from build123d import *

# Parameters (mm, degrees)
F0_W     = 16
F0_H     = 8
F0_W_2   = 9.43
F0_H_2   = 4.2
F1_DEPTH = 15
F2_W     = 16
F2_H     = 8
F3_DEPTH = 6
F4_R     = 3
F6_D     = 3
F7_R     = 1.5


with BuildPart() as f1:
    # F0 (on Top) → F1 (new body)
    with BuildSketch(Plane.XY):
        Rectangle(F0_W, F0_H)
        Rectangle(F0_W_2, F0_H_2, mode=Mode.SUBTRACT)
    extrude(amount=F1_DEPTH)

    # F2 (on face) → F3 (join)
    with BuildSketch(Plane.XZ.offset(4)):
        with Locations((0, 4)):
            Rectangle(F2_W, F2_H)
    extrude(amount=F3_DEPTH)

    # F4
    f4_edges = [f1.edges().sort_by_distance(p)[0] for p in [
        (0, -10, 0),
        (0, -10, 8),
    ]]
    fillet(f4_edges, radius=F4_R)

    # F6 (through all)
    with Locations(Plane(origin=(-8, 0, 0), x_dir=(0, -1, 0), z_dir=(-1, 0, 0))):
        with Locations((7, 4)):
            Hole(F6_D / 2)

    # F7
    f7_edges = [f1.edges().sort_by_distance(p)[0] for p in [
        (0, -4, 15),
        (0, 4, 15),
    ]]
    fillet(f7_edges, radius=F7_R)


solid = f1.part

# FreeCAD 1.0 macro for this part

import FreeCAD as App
import Part
import Sketcher


def edges_at(feature, points):
    """Names of the edges that pass closest to the given points."""
    edges = feature.Shape.Edges
    near = lambda p: min(range(len(edges)), key=lambda i: edges[i].distToShape(Part.Vertex(*p))[0])
    return sorted({f"Edge{near(p) + 1}" for p in points})


def add_polygon(sketch, points):
    """Adds a closed chain of lines whose ends are joined by coincident constraints."""
    first, n = sketch.GeometryCount, len(points)
    for a, b in zip(points, points[1:] + points[:1]):
        sketch.addGeometry(Part.LineSegment(App.Vector(*a, 0), App.Vector(*b, 0)), False)
    for i in range(n):
        sketch.addConstraint(Sketcher.Constraint("Coincident", first + i, 2, first + (i + 1) % n, 1))

doc = App.newDocument("Part")
body = doc.addObject("PartDesign::Body", "Body")

sketch1 = body.newObject("Sketcher::SketchObject", "Sketch")
sketch1.AttachmentSupport = (doc.getObject("XY_Plane"), [""])
sketch1.MapMode = "FlatFace"
add_polygon(sketch1, [(-8, 4), (-8, -4), (8, -4), (8, 4)])
add_polygon(sketch1, [(4.7, -2.1), (-4.7, -2.1), (-4.7, 2.1), (4.7, 2.1)])
sketch1.addConstraint([
    Sketcher.Constraint("Vertical", 0),
    Sketcher.Constraint("Horizontal", 1),
    Sketcher.Constraint("Vertical", 2),
    Sketcher.Constraint("Horizontal", 3),
    Sketcher.Constraint("Horizontal", 4),
    Sketcher.Constraint("Vertical", 5),
    Sketcher.Constraint("Horizontal", 6),
    Sketcher.Constraint("Vertical", 7),
    Sketcher.Constraint("Symmetric", 0, 2, 2, 2, -1, 1),
    Sketcher.Constraint("Symmetric", 4, 2, 6, 2, -1, 1),
    Sketcher.Constraint("DistanceX", 1, 1, 1, 2, 16.0),
    Sketcher.Constraint("DistanceY", 0, 2, 0, 1, 8.0),
    Sketcher.Constraint("DistanceY", 5, 1, 5, 2, 4.2),
    Sketcher.Constraint("DistanceX", 4, 2, 4, 1, 9.43),
])
pad1 = body.newObject("PartDesign::Pad", "Pad")
pad1.Profile = sketch1
pad1.Length = 15

sketch2 = body.newObject("Sketcher::SketchObject", "Sketch001")
sketch2.AttachmentSupport = (doc.getObject("XZ_Plane"), [""])
sketch2.MapMode = "FlatFace"
sketch2.AttachmentOffset = App.Placement(App.Vector(0, 0, 4), App.Rotation())
add_polygon(sketch2, [(-8, 8), (-8, 0), (8, 0), (8, 8)])
sketch2.addConstraint([
    Sketcher.Constraint("Vertical", 0),
    Sketcher.Constraint("Horizontal", 1),
    Sketcher.Constraint("Vertical", 2),
    Sketcher.Constraint("Horizontal", 3),
    Sketcher.Constraint("Symmetric", 0, 2, 1, 2, -1, 1),
    Sketcher.Constraint("DistanceX", 1, 1, 1, 2, 16.0),
    Sketcher.Constraint("DistanceY", 0, 2, 0, 1, 8.0),
])
pad2 = body.newObject("PartDesign::Pad", "Pad001")
pad2.Profile = sketch2
pad2.Length = 6
doc.recompute()

fillet = body.newObject("PartDesign::Fillet", "Fillet")
fillet.Base = (pad2, edges_at(pad2, [(0, -10, 0), (0, -10, 8)]))
fillet.Radius = 3

sketch3 = body.newObject("Sketcher::SketchObject", "Sketch002")
sketch3.AttachmentSupport = (doc.getObject("YZ_Plane"), [""])
sketch3.MapMode = "FlatFace"
sketch3.AttachmentOffset = App.Placement(App.Vector(0, 0, -8), App.Rotation())
sketch3.addGeometry(Part.Circle(App.Vector(-7, 4, 0), App.Vector(0, 0, 1), 1.5), False)
sketch3.addConstraint([
    Sketcher.Constraint("Diameter", 0, 3.0),
    Sketcher.Constraint("DistanceX", 0, 3, -1, 1, 7.0),
    Sketcher.Constraint("DistanceY", -1, 1, 0, 3, 4.0),
])
doc.recompute()
hole = body.newObject("PartDesign::Hole", "Hole")
hole.Profile = sketch3
hole.ThreadType = "None"
hole.Diameter = 3
hole.DepthType = "ThroughAll"
hole.Reversed = True
doc.recompute()

fillet2 = body.newObject("PartDesign::Fillet", "Fillet001")
fillet2.Base = (hole, edges_at(hole, [(0, -4, 15), (0, 4, 15)]))
fillet2.Radius = 1.5

doc.recompute()
